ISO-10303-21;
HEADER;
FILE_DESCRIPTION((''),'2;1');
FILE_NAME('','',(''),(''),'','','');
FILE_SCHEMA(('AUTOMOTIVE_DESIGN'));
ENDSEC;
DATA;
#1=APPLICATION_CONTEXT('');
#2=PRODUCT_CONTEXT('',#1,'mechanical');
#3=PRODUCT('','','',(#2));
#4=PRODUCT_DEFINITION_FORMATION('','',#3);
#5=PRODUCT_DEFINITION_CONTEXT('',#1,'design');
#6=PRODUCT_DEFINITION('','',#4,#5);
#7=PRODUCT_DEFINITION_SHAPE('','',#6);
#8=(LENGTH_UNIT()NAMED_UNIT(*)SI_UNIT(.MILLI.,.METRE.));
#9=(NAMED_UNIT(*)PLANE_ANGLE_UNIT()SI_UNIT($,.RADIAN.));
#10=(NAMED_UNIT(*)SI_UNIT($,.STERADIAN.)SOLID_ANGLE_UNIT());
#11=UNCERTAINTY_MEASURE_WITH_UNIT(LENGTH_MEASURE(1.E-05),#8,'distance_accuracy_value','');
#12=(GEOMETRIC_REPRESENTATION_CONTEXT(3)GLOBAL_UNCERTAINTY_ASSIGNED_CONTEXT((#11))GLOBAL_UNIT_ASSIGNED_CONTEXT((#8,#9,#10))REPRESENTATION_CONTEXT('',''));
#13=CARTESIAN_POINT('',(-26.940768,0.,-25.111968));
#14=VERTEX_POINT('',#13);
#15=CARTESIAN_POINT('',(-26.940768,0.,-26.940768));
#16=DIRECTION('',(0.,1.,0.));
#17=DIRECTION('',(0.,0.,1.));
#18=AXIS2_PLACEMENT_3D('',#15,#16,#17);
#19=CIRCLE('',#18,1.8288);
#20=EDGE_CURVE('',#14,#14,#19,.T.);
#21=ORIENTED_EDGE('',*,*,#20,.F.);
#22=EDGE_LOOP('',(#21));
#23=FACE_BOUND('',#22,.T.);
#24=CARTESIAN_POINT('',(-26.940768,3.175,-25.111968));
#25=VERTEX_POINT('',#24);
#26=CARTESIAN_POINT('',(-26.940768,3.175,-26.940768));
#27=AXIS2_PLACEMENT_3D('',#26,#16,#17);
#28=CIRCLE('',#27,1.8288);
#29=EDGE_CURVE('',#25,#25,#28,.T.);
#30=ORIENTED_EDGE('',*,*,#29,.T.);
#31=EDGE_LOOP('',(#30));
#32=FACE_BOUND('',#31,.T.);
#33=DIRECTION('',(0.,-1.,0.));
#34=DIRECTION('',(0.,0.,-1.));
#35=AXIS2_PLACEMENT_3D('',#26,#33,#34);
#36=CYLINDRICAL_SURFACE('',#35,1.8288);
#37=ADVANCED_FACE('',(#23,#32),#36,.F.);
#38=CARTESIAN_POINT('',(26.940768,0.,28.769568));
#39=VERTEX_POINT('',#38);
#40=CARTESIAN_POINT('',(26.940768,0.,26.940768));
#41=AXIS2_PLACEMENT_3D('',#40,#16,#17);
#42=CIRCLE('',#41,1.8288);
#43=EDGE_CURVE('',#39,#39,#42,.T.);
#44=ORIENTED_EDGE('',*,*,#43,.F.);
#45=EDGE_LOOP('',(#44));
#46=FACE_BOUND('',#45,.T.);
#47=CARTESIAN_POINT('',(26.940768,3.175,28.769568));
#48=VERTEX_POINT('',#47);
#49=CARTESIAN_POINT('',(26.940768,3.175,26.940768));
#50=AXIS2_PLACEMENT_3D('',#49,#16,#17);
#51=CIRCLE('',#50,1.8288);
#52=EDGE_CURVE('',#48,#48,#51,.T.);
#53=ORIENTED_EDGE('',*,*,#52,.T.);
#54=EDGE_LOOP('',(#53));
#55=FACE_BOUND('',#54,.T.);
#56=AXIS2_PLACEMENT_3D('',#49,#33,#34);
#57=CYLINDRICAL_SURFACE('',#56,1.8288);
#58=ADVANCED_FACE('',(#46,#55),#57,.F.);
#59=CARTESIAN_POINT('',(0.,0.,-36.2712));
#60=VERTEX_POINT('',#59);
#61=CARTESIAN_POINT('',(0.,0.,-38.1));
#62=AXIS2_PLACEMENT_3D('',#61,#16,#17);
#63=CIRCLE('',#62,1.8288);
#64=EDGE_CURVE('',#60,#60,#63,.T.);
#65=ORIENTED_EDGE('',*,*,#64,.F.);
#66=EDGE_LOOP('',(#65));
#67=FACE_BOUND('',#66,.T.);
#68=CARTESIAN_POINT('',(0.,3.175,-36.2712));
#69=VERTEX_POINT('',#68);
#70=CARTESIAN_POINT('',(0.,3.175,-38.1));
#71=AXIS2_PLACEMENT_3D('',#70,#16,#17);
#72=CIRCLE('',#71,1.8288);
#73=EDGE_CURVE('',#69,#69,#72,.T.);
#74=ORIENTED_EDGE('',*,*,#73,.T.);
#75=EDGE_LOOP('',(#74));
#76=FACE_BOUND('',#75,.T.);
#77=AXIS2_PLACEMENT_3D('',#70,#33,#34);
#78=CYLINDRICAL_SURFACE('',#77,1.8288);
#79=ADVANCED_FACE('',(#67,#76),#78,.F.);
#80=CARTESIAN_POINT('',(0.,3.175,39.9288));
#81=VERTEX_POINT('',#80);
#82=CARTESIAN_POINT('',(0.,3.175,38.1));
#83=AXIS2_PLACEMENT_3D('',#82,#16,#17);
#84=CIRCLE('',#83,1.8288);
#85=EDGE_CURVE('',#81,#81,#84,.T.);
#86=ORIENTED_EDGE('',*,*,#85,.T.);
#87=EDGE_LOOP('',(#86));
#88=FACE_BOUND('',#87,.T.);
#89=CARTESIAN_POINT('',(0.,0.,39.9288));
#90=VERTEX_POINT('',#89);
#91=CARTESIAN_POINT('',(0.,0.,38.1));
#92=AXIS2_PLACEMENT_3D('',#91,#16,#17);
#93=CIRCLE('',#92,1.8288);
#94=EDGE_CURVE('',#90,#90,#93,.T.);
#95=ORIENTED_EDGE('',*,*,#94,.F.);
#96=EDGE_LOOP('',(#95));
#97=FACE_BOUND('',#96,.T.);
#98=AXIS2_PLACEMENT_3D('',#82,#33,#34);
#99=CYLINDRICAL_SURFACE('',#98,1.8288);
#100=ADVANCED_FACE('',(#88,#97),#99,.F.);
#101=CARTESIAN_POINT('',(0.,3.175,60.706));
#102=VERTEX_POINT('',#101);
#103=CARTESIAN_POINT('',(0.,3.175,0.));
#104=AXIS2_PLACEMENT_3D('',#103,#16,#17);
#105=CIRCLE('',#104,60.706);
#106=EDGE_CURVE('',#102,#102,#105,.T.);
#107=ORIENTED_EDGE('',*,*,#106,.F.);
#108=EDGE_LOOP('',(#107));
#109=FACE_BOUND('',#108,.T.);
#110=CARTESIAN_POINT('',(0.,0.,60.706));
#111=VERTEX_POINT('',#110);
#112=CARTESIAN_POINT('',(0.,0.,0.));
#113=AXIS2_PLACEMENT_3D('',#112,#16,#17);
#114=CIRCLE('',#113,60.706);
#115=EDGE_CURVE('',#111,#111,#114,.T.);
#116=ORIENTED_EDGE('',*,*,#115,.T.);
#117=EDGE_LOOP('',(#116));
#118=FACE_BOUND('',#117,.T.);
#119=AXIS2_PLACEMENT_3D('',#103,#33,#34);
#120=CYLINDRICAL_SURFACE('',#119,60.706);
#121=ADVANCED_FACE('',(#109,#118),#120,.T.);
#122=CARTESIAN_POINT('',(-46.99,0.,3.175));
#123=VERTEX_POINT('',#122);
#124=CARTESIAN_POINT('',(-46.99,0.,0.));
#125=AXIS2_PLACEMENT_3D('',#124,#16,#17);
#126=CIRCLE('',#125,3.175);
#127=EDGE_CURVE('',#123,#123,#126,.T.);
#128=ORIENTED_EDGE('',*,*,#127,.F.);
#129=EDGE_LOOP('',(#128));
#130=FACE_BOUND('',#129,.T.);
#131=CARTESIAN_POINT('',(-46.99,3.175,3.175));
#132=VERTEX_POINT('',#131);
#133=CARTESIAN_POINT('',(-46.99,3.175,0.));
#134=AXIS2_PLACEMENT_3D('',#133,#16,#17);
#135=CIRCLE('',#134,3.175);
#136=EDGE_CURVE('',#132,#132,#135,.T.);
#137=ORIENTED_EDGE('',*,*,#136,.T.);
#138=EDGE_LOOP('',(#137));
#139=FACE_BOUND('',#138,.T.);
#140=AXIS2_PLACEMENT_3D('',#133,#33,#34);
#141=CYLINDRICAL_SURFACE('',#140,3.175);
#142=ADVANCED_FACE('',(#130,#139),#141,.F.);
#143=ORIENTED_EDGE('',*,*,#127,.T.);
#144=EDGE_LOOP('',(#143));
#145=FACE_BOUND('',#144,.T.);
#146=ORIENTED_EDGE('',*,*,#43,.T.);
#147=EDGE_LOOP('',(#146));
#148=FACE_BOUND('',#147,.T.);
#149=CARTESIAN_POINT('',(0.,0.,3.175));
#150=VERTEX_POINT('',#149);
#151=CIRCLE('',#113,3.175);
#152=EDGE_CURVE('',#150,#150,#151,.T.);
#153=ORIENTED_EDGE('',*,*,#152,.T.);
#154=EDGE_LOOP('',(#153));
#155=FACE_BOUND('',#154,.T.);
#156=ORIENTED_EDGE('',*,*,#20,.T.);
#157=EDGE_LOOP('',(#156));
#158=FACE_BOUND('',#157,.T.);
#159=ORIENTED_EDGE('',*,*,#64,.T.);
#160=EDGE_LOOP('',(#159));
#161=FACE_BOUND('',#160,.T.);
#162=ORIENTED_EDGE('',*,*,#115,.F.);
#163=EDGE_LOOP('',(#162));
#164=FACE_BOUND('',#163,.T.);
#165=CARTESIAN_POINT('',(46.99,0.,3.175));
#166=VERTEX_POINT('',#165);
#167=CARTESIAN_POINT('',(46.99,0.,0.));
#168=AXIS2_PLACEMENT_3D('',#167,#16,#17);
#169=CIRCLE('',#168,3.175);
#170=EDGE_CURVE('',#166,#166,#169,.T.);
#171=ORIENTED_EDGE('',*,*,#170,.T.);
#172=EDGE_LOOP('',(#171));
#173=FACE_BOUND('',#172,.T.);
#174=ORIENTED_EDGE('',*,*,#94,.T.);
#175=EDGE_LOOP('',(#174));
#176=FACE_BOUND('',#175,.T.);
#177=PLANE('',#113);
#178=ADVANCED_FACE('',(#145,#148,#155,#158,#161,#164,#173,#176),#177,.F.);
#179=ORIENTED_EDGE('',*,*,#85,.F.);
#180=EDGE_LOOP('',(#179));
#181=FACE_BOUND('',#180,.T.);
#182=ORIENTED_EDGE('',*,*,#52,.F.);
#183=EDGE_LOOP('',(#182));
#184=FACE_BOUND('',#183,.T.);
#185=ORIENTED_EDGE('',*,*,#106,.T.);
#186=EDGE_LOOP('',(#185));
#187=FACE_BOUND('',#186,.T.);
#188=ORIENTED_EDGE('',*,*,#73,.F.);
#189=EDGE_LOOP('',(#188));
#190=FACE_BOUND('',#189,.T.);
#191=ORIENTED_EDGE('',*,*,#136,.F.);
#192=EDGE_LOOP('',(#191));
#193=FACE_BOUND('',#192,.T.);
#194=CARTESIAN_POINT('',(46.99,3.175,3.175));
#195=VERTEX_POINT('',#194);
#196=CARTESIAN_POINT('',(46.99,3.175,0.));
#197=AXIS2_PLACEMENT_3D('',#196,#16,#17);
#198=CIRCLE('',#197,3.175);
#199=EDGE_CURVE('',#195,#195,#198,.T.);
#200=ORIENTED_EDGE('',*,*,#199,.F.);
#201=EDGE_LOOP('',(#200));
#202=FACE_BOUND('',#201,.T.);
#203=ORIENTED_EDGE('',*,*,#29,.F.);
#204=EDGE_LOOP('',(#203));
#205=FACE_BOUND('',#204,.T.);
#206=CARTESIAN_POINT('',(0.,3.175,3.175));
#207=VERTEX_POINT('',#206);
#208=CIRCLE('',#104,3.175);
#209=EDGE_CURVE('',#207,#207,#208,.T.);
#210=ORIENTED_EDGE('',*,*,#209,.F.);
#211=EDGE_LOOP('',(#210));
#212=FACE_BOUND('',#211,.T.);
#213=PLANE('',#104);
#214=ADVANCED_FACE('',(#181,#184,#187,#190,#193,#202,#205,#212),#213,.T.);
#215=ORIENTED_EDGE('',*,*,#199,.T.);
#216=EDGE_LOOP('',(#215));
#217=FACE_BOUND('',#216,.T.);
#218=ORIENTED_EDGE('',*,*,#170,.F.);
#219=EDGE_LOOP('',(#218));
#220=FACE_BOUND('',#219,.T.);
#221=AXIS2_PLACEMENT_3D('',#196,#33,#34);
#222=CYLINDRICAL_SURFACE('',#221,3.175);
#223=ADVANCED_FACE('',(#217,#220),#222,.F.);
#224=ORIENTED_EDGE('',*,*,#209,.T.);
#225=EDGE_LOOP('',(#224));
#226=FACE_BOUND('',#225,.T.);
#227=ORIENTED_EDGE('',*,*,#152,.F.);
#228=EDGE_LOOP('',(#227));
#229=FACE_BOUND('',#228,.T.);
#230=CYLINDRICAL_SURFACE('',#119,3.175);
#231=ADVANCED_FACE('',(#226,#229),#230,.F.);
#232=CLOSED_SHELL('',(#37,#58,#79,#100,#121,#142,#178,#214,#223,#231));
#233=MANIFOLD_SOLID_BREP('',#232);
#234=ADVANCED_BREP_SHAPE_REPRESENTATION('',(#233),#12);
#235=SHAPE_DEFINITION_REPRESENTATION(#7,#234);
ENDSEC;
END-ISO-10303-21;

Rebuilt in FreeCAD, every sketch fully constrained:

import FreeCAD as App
import Part
import Sketcher
from FreeCAD import Vector
Q = App.Units.Quantity

doc = App.newDocument("Part")
body = doc.addObject("PartDesign::Body", "Body")

# Sketch on XZ plane
sketch1 = body.newObject("Sketcher::SketchObject", "Sketch")
sketch1.AttachmentSupport = (doc.getObject("XZ_Plane"), [""])
sketch1.MapMode = "FlatFace"
sketch1.addGeometry([
    Part.Circle(Vector(0, 0, 0), Vector(0, 0, 1), 60.706),  # 0
    Part.Circle(Vector(0, 38.1, 0), Vector(0, 0, 1), 1.8288),  # 1
    Part.Circle(Vector(26.940768, 26.940768, 0), Vector(0, 0, 1), 1.8288),  # 2
    Part.Circle(Vector(-46.99, 0, 0), Vector(0, 0, 1), 3.175),  # 3
    Part.Circle(Vector(-26.940768, -26.940768, 0), Vector(0, 0, 1), 1.8288),  # 4
    Part.Circle(Vector(0, 0, 0), Vector(0, 0, 1), 3.175),  # 5
    Part.Circle(Vector(46.99, 0, 0), Vector(0, 0, 1), 3.175),  # 6
    Part.Circle(Vector(0, -38.1, 0), Vector(0, 0, 1), 1.8288),  # 7
], False)
sketch1.addConstraint([
    Sketcher.Constraint("Coincident", 0, 3, -1, 1),
    Sketcher.Constraint("Coincident", 5, 3, -1, 1),
    Sketcher.Constraint("Equal", 1, 2),
    Sketcher.Constraint("Equal", 2, 4),
    Sketcher.Constraint("Equal", 3, 5),
    Sketcher.Constraint("Equal", 5, 6),
    Sketcher.Constraint("Equal", 4, 7),
    Sketcher.Constraint("Symmetric", 2, 3, 4, 3, -1, 1),
    Sketcher.Constraint("Symmetric", 3, 3, 6, 3, -1, 1),
    Sketcher.Constraint("Symmetric", 1, 3, 7, 3, -1, 1),
    Sketcher.Constraint("PointOnObject", 1, 3, -2),
    Sketcher.Constraint("PointOnObject", 3, 3, -1),
    Sketcher.Constraint("Diameter", 0, Q("4.78 in")),
    Sketcher.Constraint("Diameter", 3, Q("0.25 in")),
    Sketcher.Constraint("Diameter", 1, Q("0.144 in")),
    Sketcher.Constraint("DistanceY", -1, 1, 1, 3, Q("1.5 in")),
    Sketcher.Constraint("DistanceX", 3, 3, -1, 1, Q("1.85 in")),
    Sketcher.Constraint("DistanceX", -1, 1, 2, 3, 26.940768),
    Sketcher.Constraint("DistanceY", -1, 1, 2, 3, 26.940768),
])
pad1 = body.newObject("PartDesign::Pad", "Pad")
pad1.Profile = sketch1
pad1.Length = Q("0.125 in")
pad1.Reversed = True

doc.recompute()
